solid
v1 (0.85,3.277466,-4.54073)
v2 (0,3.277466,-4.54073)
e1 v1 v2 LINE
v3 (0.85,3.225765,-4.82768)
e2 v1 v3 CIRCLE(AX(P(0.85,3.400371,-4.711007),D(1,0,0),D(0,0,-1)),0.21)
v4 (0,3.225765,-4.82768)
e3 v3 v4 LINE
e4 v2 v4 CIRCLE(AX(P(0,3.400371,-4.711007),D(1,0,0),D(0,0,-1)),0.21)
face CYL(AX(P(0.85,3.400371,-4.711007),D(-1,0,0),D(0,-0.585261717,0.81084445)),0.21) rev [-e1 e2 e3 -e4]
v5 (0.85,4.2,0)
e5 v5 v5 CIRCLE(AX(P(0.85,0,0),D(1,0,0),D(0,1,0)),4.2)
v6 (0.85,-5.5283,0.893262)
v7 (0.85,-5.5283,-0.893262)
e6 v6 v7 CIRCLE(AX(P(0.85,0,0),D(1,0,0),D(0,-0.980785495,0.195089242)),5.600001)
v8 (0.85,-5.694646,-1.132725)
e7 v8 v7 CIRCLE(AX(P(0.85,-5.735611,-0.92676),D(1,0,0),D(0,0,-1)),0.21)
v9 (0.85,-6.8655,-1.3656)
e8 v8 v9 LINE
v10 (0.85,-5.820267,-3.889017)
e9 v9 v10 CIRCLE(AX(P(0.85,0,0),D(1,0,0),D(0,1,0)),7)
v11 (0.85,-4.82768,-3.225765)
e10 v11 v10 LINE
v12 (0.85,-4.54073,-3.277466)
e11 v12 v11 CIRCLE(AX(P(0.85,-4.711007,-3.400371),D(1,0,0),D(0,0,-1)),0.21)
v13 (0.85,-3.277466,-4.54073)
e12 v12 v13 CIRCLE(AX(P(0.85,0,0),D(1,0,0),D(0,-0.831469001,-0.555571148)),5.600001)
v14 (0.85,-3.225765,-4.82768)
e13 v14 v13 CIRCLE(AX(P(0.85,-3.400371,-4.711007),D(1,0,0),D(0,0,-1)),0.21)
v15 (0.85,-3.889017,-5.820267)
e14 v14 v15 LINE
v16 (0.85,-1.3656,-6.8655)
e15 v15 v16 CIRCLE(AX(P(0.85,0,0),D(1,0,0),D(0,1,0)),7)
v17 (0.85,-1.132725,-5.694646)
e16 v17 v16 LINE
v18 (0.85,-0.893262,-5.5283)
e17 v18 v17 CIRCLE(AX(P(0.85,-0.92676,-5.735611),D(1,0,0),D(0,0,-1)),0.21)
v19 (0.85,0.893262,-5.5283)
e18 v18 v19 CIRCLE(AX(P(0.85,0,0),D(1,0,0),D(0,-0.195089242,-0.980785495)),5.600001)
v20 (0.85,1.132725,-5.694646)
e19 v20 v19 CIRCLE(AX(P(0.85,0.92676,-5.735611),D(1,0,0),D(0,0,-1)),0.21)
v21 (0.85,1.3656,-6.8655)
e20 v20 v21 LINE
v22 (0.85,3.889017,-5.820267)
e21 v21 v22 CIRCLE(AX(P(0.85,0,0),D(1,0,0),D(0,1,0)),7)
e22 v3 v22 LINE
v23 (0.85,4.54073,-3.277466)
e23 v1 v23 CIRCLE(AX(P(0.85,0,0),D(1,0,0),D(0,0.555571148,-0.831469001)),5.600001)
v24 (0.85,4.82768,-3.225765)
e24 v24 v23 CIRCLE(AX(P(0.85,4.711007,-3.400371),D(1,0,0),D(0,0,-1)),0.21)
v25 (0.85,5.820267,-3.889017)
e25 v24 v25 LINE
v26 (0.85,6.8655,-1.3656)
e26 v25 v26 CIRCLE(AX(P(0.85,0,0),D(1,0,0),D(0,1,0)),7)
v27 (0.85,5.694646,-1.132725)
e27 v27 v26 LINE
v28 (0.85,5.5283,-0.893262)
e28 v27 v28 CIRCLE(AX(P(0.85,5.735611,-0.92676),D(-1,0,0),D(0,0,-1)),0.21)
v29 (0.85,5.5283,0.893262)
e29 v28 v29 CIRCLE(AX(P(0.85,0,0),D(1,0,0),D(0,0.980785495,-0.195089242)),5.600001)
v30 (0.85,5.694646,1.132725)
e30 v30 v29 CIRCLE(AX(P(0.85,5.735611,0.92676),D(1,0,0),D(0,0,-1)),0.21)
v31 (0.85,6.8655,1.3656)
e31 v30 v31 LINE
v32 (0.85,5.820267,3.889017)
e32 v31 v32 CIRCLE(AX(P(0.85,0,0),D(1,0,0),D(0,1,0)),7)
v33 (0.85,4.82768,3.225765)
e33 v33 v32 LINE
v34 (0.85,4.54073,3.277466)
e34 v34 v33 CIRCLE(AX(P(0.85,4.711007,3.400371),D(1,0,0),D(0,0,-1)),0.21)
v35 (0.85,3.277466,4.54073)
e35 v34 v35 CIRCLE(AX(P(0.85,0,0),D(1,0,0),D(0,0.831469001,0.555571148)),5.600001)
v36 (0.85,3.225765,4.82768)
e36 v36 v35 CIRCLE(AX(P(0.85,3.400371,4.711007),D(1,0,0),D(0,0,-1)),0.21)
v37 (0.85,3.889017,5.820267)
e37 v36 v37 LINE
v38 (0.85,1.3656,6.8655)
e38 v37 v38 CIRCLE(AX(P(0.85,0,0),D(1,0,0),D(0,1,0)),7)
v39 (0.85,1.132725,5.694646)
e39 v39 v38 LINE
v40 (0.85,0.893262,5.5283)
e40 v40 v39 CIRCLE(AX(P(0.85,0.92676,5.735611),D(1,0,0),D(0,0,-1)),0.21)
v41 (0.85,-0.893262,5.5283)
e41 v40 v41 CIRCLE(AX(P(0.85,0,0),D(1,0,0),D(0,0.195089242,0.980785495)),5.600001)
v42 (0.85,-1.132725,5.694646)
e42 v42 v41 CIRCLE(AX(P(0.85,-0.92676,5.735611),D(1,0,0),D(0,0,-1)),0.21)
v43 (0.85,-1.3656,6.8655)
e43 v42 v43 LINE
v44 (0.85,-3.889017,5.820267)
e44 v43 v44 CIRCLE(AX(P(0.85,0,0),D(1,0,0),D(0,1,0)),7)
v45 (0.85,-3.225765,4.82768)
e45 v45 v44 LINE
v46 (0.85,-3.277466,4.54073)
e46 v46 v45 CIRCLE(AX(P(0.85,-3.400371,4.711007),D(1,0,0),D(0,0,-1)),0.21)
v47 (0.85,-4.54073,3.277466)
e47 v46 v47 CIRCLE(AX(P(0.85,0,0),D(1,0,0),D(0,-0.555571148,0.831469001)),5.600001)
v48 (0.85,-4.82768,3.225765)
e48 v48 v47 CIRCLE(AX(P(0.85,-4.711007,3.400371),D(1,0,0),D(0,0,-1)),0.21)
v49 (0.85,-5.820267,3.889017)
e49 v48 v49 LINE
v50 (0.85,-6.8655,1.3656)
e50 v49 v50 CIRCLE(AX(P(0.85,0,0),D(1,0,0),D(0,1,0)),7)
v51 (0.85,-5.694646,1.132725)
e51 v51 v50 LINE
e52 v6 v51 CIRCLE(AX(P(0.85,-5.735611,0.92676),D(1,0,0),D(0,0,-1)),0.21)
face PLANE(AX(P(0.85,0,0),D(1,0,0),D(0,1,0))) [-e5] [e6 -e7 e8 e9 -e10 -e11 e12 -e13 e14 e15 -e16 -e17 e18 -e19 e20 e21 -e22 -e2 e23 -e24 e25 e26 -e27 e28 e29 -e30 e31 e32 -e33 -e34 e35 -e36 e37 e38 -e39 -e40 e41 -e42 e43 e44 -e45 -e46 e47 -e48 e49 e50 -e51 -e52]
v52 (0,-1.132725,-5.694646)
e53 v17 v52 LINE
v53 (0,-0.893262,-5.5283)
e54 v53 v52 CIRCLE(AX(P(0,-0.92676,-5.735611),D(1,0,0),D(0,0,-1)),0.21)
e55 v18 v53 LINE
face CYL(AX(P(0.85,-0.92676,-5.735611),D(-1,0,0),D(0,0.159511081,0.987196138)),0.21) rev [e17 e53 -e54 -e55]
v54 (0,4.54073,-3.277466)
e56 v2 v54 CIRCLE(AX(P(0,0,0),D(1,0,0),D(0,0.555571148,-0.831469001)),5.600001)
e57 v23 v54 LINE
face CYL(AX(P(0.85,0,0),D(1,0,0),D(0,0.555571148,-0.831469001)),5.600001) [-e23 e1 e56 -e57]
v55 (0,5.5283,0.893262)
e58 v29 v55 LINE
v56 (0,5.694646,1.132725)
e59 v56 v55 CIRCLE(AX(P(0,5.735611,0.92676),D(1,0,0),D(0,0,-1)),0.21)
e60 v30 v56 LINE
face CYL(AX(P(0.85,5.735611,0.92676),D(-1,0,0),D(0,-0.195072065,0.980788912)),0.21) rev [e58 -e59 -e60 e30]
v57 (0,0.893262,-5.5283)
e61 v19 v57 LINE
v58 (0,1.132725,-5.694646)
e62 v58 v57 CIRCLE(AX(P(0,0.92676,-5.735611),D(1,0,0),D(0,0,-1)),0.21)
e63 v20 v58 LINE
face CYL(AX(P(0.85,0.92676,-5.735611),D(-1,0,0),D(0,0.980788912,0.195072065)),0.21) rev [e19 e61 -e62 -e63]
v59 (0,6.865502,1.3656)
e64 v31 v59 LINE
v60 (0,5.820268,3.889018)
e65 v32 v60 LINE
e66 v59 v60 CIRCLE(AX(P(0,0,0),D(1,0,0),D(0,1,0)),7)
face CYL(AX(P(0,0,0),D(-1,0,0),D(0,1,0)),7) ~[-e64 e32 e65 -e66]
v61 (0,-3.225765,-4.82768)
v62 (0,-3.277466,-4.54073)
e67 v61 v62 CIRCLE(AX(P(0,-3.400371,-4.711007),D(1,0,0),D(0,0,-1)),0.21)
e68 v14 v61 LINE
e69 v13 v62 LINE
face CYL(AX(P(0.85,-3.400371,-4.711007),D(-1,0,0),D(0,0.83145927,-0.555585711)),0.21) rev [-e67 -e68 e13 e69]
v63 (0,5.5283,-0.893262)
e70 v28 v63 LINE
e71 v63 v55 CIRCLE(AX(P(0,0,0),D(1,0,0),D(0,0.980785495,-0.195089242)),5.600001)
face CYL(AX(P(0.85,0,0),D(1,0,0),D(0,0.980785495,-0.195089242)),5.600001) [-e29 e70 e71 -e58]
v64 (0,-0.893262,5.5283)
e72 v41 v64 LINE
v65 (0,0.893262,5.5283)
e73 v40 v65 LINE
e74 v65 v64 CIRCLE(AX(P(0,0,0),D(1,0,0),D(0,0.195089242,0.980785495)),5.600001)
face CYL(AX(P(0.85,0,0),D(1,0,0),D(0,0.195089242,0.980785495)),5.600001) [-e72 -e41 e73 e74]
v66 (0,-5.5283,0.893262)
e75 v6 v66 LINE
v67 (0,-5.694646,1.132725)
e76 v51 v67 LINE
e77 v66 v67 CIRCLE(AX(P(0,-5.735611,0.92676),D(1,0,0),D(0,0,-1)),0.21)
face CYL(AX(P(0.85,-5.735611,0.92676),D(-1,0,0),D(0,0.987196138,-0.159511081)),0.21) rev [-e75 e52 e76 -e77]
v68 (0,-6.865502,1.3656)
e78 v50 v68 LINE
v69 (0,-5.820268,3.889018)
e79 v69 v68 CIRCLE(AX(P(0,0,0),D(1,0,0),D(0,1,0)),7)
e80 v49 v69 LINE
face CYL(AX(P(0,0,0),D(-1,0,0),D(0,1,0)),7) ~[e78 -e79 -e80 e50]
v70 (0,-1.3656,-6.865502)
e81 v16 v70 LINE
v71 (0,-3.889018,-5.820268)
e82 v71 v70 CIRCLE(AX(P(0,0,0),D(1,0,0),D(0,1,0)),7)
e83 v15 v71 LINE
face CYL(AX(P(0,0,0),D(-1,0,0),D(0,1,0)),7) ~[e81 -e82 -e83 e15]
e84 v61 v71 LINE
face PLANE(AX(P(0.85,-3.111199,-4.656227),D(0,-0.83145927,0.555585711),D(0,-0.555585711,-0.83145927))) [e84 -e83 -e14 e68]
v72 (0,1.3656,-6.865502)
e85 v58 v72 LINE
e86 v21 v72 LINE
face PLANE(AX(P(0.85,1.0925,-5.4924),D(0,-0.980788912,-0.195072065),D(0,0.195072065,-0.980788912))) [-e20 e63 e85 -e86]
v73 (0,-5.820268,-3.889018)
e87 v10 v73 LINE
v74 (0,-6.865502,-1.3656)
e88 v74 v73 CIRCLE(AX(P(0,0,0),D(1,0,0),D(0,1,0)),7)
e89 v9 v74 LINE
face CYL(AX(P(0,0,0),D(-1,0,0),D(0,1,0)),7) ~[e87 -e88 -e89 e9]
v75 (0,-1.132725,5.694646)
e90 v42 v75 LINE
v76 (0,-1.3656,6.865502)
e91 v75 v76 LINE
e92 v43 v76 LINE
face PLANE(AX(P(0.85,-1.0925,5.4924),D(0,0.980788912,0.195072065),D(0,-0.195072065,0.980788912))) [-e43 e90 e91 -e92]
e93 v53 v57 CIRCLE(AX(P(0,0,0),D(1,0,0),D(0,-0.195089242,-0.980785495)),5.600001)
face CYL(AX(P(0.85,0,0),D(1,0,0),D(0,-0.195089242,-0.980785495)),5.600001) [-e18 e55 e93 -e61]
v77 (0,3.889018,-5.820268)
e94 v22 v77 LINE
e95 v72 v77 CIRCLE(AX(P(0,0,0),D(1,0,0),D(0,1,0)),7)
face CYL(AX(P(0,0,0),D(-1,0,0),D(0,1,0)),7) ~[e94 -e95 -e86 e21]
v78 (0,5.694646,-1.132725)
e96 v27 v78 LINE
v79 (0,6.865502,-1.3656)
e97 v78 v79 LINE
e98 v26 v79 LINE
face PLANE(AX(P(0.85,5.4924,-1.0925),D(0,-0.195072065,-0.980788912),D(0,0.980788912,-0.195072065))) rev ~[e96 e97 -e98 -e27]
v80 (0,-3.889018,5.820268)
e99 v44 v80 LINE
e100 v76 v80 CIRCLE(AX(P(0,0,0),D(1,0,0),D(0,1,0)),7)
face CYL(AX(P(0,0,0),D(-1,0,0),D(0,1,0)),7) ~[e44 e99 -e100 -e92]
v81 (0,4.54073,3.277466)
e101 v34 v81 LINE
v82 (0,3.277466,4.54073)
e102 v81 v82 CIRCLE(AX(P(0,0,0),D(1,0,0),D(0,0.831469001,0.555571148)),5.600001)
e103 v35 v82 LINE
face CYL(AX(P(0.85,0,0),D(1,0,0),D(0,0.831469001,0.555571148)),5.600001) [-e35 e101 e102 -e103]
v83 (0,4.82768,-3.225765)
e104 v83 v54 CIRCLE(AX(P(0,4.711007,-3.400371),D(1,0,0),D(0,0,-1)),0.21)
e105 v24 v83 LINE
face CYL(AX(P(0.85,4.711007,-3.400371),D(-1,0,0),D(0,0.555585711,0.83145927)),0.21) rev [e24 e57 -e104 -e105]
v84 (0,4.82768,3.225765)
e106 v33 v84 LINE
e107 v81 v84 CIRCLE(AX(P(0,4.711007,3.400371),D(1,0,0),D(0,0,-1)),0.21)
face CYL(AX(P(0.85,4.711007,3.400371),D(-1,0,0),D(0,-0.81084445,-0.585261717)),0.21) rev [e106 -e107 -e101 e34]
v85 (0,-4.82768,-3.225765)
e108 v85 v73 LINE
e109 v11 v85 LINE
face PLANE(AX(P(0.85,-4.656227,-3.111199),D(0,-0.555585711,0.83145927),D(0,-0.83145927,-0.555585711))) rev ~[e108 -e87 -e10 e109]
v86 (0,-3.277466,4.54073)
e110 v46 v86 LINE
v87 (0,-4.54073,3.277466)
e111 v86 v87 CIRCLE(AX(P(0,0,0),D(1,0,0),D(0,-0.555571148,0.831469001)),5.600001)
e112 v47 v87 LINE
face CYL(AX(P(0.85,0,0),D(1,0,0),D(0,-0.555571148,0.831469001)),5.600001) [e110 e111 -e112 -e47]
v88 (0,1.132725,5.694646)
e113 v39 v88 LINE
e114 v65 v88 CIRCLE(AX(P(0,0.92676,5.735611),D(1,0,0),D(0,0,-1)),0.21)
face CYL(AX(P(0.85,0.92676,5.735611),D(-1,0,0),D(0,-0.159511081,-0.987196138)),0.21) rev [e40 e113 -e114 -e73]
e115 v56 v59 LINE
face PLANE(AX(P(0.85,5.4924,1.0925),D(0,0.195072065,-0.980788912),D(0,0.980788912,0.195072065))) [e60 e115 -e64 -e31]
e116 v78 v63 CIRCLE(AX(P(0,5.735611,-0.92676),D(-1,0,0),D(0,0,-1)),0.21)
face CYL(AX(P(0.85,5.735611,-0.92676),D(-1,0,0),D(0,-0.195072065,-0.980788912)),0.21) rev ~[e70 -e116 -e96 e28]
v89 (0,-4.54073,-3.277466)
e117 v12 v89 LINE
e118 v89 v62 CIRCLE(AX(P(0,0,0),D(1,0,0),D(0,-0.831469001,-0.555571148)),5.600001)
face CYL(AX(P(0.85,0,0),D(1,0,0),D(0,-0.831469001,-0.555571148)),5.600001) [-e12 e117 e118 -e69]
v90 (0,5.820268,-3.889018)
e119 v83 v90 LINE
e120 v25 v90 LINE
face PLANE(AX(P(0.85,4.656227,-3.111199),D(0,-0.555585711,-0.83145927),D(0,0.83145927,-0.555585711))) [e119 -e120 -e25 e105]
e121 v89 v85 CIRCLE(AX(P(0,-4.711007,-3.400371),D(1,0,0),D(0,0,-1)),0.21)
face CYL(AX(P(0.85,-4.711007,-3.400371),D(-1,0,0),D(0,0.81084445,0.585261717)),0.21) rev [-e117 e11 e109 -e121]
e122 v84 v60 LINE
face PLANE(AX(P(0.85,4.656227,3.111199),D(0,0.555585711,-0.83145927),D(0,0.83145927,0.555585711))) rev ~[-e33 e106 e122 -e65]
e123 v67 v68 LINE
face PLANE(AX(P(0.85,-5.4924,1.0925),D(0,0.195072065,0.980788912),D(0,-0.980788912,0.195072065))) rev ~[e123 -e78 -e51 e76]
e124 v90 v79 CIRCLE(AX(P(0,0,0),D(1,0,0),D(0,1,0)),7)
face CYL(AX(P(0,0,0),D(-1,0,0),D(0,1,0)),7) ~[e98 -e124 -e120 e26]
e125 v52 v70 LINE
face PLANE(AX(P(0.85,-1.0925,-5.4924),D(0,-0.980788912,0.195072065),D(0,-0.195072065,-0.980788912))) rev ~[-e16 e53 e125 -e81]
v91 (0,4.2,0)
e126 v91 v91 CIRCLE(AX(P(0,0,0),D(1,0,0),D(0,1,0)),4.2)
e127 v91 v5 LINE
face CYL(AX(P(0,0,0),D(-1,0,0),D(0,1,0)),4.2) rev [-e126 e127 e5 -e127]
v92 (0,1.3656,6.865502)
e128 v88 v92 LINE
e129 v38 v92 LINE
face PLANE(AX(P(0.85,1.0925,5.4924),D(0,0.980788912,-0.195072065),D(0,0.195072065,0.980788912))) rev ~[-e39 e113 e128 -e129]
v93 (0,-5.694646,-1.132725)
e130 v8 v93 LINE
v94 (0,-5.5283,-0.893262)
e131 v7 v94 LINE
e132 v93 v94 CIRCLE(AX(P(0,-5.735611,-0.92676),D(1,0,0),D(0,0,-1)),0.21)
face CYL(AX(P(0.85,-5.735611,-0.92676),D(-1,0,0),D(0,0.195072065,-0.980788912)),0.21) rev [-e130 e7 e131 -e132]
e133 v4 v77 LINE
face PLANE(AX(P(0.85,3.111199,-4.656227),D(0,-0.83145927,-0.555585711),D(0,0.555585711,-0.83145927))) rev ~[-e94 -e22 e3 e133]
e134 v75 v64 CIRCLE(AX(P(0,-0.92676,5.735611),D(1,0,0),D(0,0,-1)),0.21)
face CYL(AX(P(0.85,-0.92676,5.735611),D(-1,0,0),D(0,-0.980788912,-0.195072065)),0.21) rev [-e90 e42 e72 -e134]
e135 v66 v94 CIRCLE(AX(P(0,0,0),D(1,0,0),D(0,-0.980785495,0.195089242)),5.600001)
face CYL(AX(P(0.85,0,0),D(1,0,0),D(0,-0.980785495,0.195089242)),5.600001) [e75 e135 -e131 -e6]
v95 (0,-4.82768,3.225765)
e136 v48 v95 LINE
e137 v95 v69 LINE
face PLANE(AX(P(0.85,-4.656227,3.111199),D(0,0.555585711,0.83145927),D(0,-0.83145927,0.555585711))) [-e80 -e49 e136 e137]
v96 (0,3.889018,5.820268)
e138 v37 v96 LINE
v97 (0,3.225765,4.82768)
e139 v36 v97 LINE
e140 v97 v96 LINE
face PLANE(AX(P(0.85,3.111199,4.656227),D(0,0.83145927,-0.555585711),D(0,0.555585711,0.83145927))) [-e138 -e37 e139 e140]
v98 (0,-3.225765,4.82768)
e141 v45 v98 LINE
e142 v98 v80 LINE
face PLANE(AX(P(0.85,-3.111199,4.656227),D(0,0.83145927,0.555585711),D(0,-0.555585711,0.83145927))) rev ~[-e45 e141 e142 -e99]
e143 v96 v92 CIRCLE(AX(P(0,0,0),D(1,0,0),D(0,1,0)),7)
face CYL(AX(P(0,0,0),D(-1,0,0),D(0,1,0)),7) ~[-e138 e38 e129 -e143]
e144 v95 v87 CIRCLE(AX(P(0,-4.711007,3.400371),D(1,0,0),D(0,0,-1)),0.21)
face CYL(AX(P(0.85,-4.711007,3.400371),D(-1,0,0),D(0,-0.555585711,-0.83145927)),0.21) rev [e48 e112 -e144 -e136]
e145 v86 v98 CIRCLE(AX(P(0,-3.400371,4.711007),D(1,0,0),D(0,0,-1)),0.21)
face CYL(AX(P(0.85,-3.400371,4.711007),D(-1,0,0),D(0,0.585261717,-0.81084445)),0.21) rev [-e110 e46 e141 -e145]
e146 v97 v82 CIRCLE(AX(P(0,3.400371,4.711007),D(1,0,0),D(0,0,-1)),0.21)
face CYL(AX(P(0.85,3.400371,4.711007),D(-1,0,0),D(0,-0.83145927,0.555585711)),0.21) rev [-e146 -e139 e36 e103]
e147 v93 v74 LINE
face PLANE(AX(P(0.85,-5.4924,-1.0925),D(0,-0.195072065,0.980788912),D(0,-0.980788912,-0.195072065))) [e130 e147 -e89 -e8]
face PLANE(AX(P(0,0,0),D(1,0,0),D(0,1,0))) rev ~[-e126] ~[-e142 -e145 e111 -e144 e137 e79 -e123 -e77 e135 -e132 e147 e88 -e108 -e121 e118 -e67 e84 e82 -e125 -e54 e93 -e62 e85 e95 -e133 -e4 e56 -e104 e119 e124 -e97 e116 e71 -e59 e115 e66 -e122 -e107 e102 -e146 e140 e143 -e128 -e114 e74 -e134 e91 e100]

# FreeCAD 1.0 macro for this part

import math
import FreeCAD as App
import Part
import Sketcher
Q = App.Units.Quantity


def edges_at(feature, points):
    """Names of the edges that pass closest to the given points."""
    edges = feature.Shape.Edges
    near = lambda p: min(range(len(edges)), key=lambda i: edges[i].distToShape(Part.Vertex(*p))[0])
    return sorted({f"Edge{near(p) + 1}" for p in points})

doc = App.newDocument("Part")
body = doc.addObject("PartDesign::Body", "Body")

sketch1 = doc.addObject("Sketcher::SketchObject", "Sketch")
body.addObject(sketch1)
sketch1.AttachmentSupport = (doc.YZ_Plane, [""])
sketch1.MapMode = "FlatFace"
sketch1.addGeometry([
    Part.Circle(App.Vector(0, 0, 0), App.Vector(0, 0, 1), 7),
    Part.Circle(App.Vector(0, 0, 0), App.Vector(0, 0, 1), 4.2),
], False)
sketch1.addConstraint([
    Sketcher.Constraint("Coincident", 0, 3, -1, 1),
    Sketcher.Constraint("Coincident", 1, 3, -1, 1),
    Sketcher.Constraint("Diameter", 0, 14.0),
    Sketcher.Constraint("Diameter", 1, 8.4),
])
pad1 = doc.addObject("PartDesign::Pad", "Pad")
body.addObject(pad1)
pad1.Profile = sketch1
pad1.Length = 0.85

sketch2 = doc.addObject("Sketcher::SketchObject", "Sketch001")
body.addObject(sketch2)
sketch2.AttachmentSupport = (doc.YZ_Plane, [""])
sketch2.MapMode = "FlatFace"
sketch2.AttachmentOffset = App.Placement(App.Vector(0, 0, 0.85), App.Rotation())
sketch2.addGeometry([
    Part.LineSegment(App.Vector(5.5, -1.1, 0), App.Vector(6.9, -1.4, 0)),
    Part.ArcOfCircle(Part.Circle(App.Vector(0, 0, 0), App.Vector(0, 0, 1), 7), math.radians(-11), math.radians(11)),
    Part.LineSegment(App.Vector(6.9, 1.4, 0), App.Vector(5.5, 1.1, 0)),
    Part.ArcOfCircle(Part.Circle(App.Vector(0, 0, 0), App.Vector(0, 0, 1), 5.6), math.radians(-11), math.radians(11)),
], False)
sketch2.addConstraint([
    Sketcher.Constraint("Coincident", 0, 2, 1, 1),
    Sketcher.Constraint("Coincident", 1, 2, 2, 1),
    Sketcher.Constraint("Coincident", 2, 2, 3, 2),
    Sketcher.Constraint("Coincident", 3, 1, 0, 1),
    Sketcher.Constraint("Coincident", 1, 3, -1, 1),
    Sketcher.Constraint("Coincident", 3, 3, -1, 1),
    Sketcher.Constraint("Vertical", 0, 2, 1, 2),
    Sketcher.Constraint("Vertical", 2, 2, 3, 1),
    Sketcher.Constraint("Radius", 3, 5.6),
    Sketcher.Constraint("Radius", 1, 7.0),
    Sketcher.Constraint("Angle", 0, Q("-11.249 deg")),
    Sketcher.Constraint("DistanceY", 0, 2, 2, 2, 2.458),
])
pocket1 = doc.addObject("PartDesign::Pocket", "Pocket")
body.addObject(pocket1)
pocket1.Profile = sketch2
pocket1.Type = "ThroughAll"
doc.recompute()

fillet = doc.addObject("PartDesign::Fillet", "Fillet")
body.addObject(fillet)
fillet.Base = (pocket1, edges_at(pocket1, [(0.425, 5.492, 1.093), (0.425, 5.492, -1.093)]))
fillet.Radius = 0.21
doc.recompute()

polarpattern = doc.addObject("PartDesign::PolarPattern", "PolarPattern")
body.addObject(polarpattern)
polarpattern.Originals = [pocket1, fillet]
polarpattern.Axis = (doc.X_Axis, [""])
polarpattern.Angle = 360
polarpattern.Occurrences = 8
body.Tip = polarpattern

doc.recompute()
